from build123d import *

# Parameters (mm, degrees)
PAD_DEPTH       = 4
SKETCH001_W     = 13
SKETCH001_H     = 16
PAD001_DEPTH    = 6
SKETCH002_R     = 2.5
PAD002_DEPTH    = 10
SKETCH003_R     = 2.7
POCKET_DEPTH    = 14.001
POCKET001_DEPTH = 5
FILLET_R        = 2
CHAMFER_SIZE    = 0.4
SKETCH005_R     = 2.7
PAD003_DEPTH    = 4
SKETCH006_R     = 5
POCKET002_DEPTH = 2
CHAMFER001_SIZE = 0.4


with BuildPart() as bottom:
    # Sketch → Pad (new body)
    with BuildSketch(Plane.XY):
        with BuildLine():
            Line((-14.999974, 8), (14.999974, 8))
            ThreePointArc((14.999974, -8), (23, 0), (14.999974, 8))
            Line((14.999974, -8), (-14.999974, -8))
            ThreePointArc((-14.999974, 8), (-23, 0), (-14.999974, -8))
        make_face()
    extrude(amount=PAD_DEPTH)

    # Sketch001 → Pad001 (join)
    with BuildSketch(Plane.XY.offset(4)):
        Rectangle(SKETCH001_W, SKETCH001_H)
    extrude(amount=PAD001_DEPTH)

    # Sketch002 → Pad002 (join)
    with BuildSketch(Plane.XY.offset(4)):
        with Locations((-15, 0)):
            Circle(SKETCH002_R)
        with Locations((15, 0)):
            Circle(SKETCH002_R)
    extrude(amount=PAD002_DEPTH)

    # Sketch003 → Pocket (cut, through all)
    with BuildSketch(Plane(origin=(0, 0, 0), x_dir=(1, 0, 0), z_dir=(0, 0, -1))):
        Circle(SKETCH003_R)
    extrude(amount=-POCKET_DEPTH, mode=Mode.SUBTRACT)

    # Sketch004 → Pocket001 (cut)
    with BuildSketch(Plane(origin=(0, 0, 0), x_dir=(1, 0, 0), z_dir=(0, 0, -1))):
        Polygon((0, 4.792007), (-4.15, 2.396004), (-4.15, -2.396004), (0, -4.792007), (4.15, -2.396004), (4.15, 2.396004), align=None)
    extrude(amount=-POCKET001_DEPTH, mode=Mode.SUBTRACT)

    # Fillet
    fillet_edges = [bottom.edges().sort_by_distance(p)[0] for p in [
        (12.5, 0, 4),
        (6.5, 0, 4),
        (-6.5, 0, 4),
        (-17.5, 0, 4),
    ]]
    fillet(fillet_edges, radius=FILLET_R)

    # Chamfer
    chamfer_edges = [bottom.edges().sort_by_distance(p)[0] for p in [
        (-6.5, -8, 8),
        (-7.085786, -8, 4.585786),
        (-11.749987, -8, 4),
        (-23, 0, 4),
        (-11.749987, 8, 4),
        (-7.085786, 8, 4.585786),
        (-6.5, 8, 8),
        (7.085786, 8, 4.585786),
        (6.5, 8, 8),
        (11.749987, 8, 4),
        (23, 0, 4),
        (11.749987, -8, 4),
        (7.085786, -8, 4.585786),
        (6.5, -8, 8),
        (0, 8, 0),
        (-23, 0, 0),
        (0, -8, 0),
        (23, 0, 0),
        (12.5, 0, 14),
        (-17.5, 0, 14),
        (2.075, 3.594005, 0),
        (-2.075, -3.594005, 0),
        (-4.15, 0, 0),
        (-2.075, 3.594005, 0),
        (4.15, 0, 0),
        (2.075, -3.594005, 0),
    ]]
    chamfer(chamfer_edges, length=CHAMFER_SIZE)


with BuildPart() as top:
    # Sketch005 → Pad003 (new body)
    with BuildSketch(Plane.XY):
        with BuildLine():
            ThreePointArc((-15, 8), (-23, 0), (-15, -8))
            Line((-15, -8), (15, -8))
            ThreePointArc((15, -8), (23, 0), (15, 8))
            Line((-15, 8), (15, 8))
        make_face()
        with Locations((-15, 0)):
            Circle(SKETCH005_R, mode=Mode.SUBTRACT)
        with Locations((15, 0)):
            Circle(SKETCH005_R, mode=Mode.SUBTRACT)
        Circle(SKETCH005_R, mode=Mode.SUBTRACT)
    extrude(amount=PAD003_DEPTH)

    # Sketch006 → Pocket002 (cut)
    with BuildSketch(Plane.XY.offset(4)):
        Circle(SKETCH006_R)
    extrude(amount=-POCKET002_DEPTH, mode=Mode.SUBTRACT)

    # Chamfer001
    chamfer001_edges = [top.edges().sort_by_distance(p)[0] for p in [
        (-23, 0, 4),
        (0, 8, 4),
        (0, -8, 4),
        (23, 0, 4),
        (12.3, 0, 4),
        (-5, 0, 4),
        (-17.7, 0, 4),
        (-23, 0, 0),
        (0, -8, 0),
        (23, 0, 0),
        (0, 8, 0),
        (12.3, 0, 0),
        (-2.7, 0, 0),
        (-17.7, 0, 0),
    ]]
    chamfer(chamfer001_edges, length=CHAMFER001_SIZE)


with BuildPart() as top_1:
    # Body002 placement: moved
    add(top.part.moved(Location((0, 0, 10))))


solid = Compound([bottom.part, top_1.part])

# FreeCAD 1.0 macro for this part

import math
import FreeCAD as App
import Part
import Sketcher
Q = App.Units.Quantity


def edges_at(feature, points):
    """Names of the edges that pass closest to the given points."""
    edges = feature.Shape.Edges
    near = lambda p: min(range(len(edges)), key=lambda i: edges[i].distToShape(Part.Vertex(*p))[0])
    return sorted({f"Edge{near(p) + 1}" for p in points})


def add_polygon(sketch, points):
    """Adds a closed chain of lines whose ends are joined by coincident constraints."""
    first, n = sketch.GeometryCount, len(points)
    for a, b in zip(points, points[1:] + points[:1]):
        sketch.addGeometry(Part.LineSegment(App.Vector(*a, 0), App.Vector(*b, 0)), False)
    for i in range(n):
        sketch.addConstraint(Sketcher.Constraint("Coincident", first + i, 2, first + (i + 1) % n, 1))

doc = App.newDocument("Part")
body = doc.addObject("PartDesign::Body", "Body")

sketch1 = body.newObject("Sketcher::SketchObject", "Sketch")
sketch1.AttachmentSupport = (doc.getObject("XY_Plane"), [""])
sketch1.MapMode = "FlatFace"
sketch1.addGeometry(Part.LineSegment(App.Vector(14.999974, 8, 0), App.Vector(-14.999974, 8, 0)), False)
sketch1.addGeometry(Part.ArcOfCircle(Part.Circle(App.Vector(-15, 0, 0), App.Vector(0, 0, 1), 8), math.radians(89.999814), math.radians(270.000186)), False)
sketch1.addGeometry(Part.LineSegment(App.Vector(-14.999974, -8, 0), App.Vector(14.999974, -8, 0)), False)
sketch1.addGeometry(Part.ArcOfCircle(Part.Circle(App.Vector(15, 0, 0), App.Vector(0, 0, 1), 8), math.radians(-90.000186), math.radians(90.000186)), False)
sketch1.addConstraint(Sketcher.Constraint("Coincident", 0, 2, 1, 1))
sketch1.addConstraint(Sketcher.Constraint("Coincident", 1, 2, 2, 1))
sketch1.addConstraint(Sketcher.Constraint("Coincident", 2, 2, 3, 1))
sketch1.addConstraint(Sketcher.Constraint("Coincident", 3, 2, 0, 1))
sketch1.addConstraint(Sketcher.Constraint("Horizontal", 0))
sketch1.addConstraint(Sketcher.Constraint("Horizontal", 2))
sketch1.addConstraint(Sketcher.Constraint("Symmetric", 1, 3, 3, 3, -1, 1))
sketch1.addConstraint(Sketcher.Constraint("Vertical", 0, 2, 1, 2))
sketch1.addConstraint(Sketcher.Constraint("Vertical", 2, 2, 3, 2))
sketch1.addConstraint(Sketcher.Constraint("Radius", 1, 8.0))
sketch1.addConstraint(Sketcher.Constraint("DistanceX", 1, 3, -1, 1, 15.0))
sketch1.addConstraint(Sketcher.Constraint("DistanceX", 0, 2, 0, 1, 29.999948))
sketch1.addConstraint(Sketcher.Constraint("DistanceX", 0, 2, -1, 1, 14.999974))
pad1 = body.newObject("PartDesign::Pad", "Pad")
pad1.Profile = sketch1
pad1.Length = 4

sketch2 = body.newObject("Sketcher::SketchObject", "Sketch001")
sketch2.AttachmentSupport = (doc.getObject("XY_Plane"), [""])
sketch2.MapMode = "FlatFace"
sketch2.AttachmentOffset = App.Placement(App.Vector(0, 0, 4), App.Rotation())
add_polygon(sketch2, [(-6.5, 8), (-6.5, -8), (6.5, -8), (6.5, 8)])
sketch2.addConstraint(Sketcher.Constraint("Vertical", 0))
sketch2.addConstraint(Sketcher.Constraint("Horizontal", 1))
sketch2.addConstraint(Sketcher.Constraint("Vertical", 2))
sketch2.addConstraint(Sketcher.Constraint("Horizontal", 3))
sketch2.addConstraint(Sketcher.Constraint("Symmetric", 0, 2, 2, 2, -1, 1))
sketch2.addConstraint(Sketcher.Constraint("DistanceX", 1, 1, 1, 2, 13.0))
sketch2.addConstraint(Sketcher.Constraint("DistanceY", 0, 2, 0, 1, 16.0))
pad2 = body.newObject("PartDesign::Pad", "Pad001")
pad2.Profile = sketch2
pad2.Length = 6

sketch3 = body.newObject("Sketcher::SketchObject", "Sketch002")
sketch3.AttachmentSupport = (doc.getObject("XY_Plane"), [""])
sketch3.MapMode = "FlatFace"
sketch3.AttachmentOffset = App.Placement(App.Vector(0, 0, 4), App.Rotation())
sketch3.addGeometry(Part.Circle(App.Vector(-15, 0, 0), App.Vector(0, 0, 1), 2.5), False)
sketch3.addGeometry(Part.Circle(App.Vector(15, 0, 0), App.Vector(0, 0, 1), 2.5), False)
sketch3.addConstraint(Sketcher.Constraint("Equal", 0, 1))
sketch3.addConstraint(Sketcher.Constraint("Symmetric", 0, 3, 1, 3, -1, 1))
sketch3.addConstraint(Sketcher.Constraint("PointOnObject", 0, 3, -1))
sketch3.addConstraint(Sketcher.Constraint("Diameter", 0, 5.0))
sketch3.addConstraint(Sketcher.Constraint("DistanceX", 0, 3, -1, 1, 15.0))
pad3 = body.newObject("PartDesign::Pad", "Pad002")
pad3.Profile = sketch3
pad3.Length = 10

sketch4 = body.newObject("Sketcher::SketchObject", "Sketch003")
sketch4.AttachmentSupport = (doc.getObject("XY_Plane"), [""])
sketch4.MapMode = "FlatFace"
sketch4.addGeometry(Part.Circle(App.Vector(0, 0, 0), App.Vector(0, 0, 1), 2.7), False)
sketch4.addConstraint(Sketcher.Constraint("Coincident", 0, 3, -1, 1))
sketch4.addConstraint(Sketcher.Constraint("Diameter", 0, 5.4))
pocket1 = body.newObject("PartDesign::Pocket", "Pocket")
pocket1.Profile = sketch4
pocket1.Type = "ThroughAll"
pocket1.Reversed = True

sketch5 = body.newObject("Sketcher::SketchObject", "Sketch004")
sketch5.AttachmentSupport = (doc.getObject("XY_Plane"), [""])
sketch5.MapMode = "FlatFace"
add_polygon(sketch5, [(0, -4.792007), (-4.15, -2.396004), (-4.15, 2.396004), (0, 4.792007), (4.15, 2.396004), (4.15, -2.396004)])
sketch5.addConstraint(Sketcher.Constraint("Vertical", 1))
sketch5.addConstraint(Sketcher.Constraint("Vertical", 4))
sketch5.addConstraint(Sketcher.Constraint("Symmetric", 0, 2, 3, 2, -1, 1))
sketch5.addConstraint(Sketcher.Constraint("Symmetric", 2, 2, 5, 2, -1, 1))
sketch5.addConstraint(Sketcher.Constraint("PointOnObject", 2, 2, -2))
sketch5.addConstraint(Sketcher.Constraint("Parallel", 2, 5))
sketch5.addConstraint(Sketcher.Constraint("Horizontal", 1, 2, 3, 2))
sketch5.addConstraint(Sketcher.Constraint("Angle", 0, Q("150.000006 deg")))
sketch5.addConstraint(Sketcher.Constraint("DistanceX", 1, 2, 3, 2, 8.3))
sketch5.addConstraint(Sketcher.Constraint("DistanceY", 1, 1, 1, 2, 4.792008))
pocket2 = body.newObject("PartDesign::Pocket", "Pocket001")
pocket2.Profile = sketch5
pocket2.Length = 5
pocket2.Reversed = True
doc.recompute()

fillet = body.newObject("PartDesign::Fillet", "Fillet")
fillet.Base = (pocket2, edges_at(pocket2, [
    (12.5, 0, 4),
    (6.5, 0, 4),
    (-6.5, 0, 4),
    (-17.5, 0, 4),
]))
fillet.Radius = 2
doc.recompute()

chamfer = body.newObject("PartDesign::Chamfer", "Chamfer")
chamfer.Base = (fillet, edges_at(fillet, [
    (-6.5, -8, 8),
    (-7.086, -8, 4.586),
    (-11.75, -8, 4),
    (-23, 0, 4),
    (-11.75, 8, 4),
    (-7.086, 8, 4.586),
    (-6.5, 8, 8),
    (7.086, 8, 4.586),
    (6.5, 8, 8),
    (11.75, 8, 4),
    (23, 0, 4),
    (11.75, -8, 4),
    (7.086, -8, 4.586),
    (6.5, -8, 8),
    (0, 8, 0),
    (-23, 0, 0),
    (0, -8, 0),
    (23, 0, 0),
    (12.5, 0, 14),
    (-17.5, 0, 14),
    (2.075, 3.594, 0),
    (-2.075, -3.594, 0),
    (-4.15, 0, 0),
    (-2.075, 3.594, 0),
    (4.15, 0, 0),
    (2.075, -3.594, 0),
]))
chamfer.Size = 0.4
body2 = doc.addObject("PartDesign::Body", "Body001")

sketch6 = body2.newObject("Sketcher::SketchObject", "Sketch005")
sketch6.AttachmentSupport = (doc.getObject("XY_Plane001"), [""])
sketch6.MapMode = "FlatFace"
sketch6.addGeometry(Part.ArcOfCircle(Part.Circle(App.Vector(-15, 0, 0), App.Vector(0, 0, 1), 8), math.radians(90), math.radians(270)), False)
sketch6.addGeometry(Part.LineSegment(App.Vector(-15, -8, 0), App.Vector(15, -8, 0)), False)
sketch6.addGeometry(Part.ArcOfCircle(Part.Circle(App.Vector(15, 0, 0), App.Vector(0, 0, 1), 8), math.radians(-90), math.radians(90)), False)
sketch6.addGeometry(Part.LineSegment(App.Vector(15, 8, 0), App.Vector(-15, 8, 0)), False)
sketch6.addGeometry(Part.Circle(App.Vector(-15, 0, 0), App.Vector(0, 0, 1), 2.7), False)
sketch6.addGeometry(Part.Circle(App.Vector(0, 0, 0), App.Vector(0, 0, 1), 2.7), False)
sketch6.addGeometry(Part.Circle(App.Vector(15, 0, 0), App.Vector(0, 0, 1), 2.7), False)
sketch6.addConstraint(Sketcher.Constraint("Tangent", 0, 2, 1, 1))
sketch6.addConstraint(Sketcher.Constraint("Tangent", 1, 2, 2, 1))
sketch6.addConstraint(Sketcher.Constraint("Tangent", 2, 2, 3, 1))
sketch6.addConstraint(Sketcher.Constraint("Tangent", 3, 2, 0, 1))
sketch6.addConstraint(Sketcher.Constraint("Horizontal", 1))
sketch6.addConstraint(Sketcher.Constraint("Horizontal", 3))
sketch6.addConstraint(Sketcher.Constraint("Coincident", 5, 3, -1, 1))
sketch6.addConstraint(Sketcher.Constraint("Coincident", 4, 3, 0, 3))
sketch6.addConstraint(Sketcher.Constraint("Coincident", 6, 3, 2, 3))
sketch6.addConstraint(Sketcher.Constraint("Equal", 4, 5))
sketch6.addConstraint(Sketcher.Constraint("Equal", 5, 6))
sketch6.addConstraint(Sketcher.Constraint("Symmetric", 0, 3, 2, 3, -1, 1))
sketch6.addConstraint(Sketcher.Constraint("Radius", 0, 8.0))
sketch6.addConstraint(Sketcher.Constraint("Diameter", 4, 5.4))
sketch6.addConstraint(Sketcher.Constraint("DistanceX", 1, 1, 1, 2, 30.0))
pad4 = body2.newObject("PartDesign::Pad", "Pad003")
pad4.Profile = sketch6
pad4.Length = 4

sketch7 = body2.newObject("Sketcher::SketchObject", "Sketch006")
sketch7.AttachmentSupport = (doc.getObject("XY_Plane001"), [""])
sketch7.MapMode = "FlatFace"
sketch7.AttachmentOffset = App.Placement(App.Vector(0, 0, 4), App.Rotation())
sketch7.addGeometry(Part.Circle(App.Vector(0, 0, 0), App.Vector(0, 0, 1), 5), False)
sketch7.addConstraint(Sketcher.Constraint("Coincident", 0, 3, -1, 1))
sketch7.addConstraint(Sketcher.Constraint("Diameter", 0, 10.0))
pocket3 = body2.newObject("PartDesign::Pocket", "Pocket002")
pocket3.Profile = sketch7
pocket3.Length = 2
doc.recompute()

chamfer2 = body2.newObject("PartDesign::Chamfer", "Chamfer001")
chamfer2.Base = (pocket3, edges_at(pocket3, [
    (-23, 0, 4),
    (0, 8, 4),
    (0, -8, 4),
    (23, 0, 4),
    (12.3, 0, 4),
    (-5, 0, 4),
    (-17.7, 0, 4),
    (-23, 0, 0),
    (0, -8, 0),
    (23, 0, 0),
    (0, 8, 0),
    (12.3, 0, 0),
    (-2.7, 0, 0),
    (-17.7, 0, 0),
]))
chamfer2.Size = 0.4
body3 = doc.addObject("PartDesign::Body", "Body002")
doc.recompute()

body2.Placement = App.Placement(App.Vector(0, 0, 10), App.Rotation(App.Vector(0, 0, 1), 0))
boolean = body3.newObject("PartDesign::Boolean", "Boolean")
boolean.Type = "Fuse"
boolean.addObjects([body2])

doc.recompute()
